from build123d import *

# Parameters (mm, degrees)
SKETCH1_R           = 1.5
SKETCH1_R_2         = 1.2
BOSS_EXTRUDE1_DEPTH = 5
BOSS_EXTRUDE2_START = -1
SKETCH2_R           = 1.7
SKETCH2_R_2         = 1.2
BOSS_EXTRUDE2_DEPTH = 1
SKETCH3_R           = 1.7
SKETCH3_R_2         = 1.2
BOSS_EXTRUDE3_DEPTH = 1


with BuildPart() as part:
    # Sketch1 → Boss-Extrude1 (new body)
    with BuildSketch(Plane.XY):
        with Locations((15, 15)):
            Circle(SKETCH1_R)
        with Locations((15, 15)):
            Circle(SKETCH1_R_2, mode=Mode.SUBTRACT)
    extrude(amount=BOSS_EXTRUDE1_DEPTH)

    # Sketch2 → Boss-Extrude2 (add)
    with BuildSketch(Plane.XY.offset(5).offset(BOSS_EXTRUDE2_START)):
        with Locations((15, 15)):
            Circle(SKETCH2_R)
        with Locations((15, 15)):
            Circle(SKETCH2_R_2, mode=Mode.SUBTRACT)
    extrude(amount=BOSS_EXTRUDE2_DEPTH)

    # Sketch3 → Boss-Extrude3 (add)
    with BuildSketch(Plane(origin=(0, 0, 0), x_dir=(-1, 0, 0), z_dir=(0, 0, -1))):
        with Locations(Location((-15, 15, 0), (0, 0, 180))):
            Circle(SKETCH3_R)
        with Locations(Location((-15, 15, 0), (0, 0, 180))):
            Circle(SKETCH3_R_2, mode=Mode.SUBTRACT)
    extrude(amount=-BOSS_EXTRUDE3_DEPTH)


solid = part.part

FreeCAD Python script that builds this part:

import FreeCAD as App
import Part
import Sketcher

doc = App.newDocument("Part")
params = doc.addObject("Spreadsheet::Sheet", "Params")
for row, (alias, value) in enumerate([
    ("sketch1_diameter", "3 mm"),
    ("sketch1_diameter2", "2.4 mm"),
    ("pad1_length", "5 mm"),
    ("sketch2_diameter", "3.4 mm"),
    ("sketch2_diameter2", "2.4 mm"),
    ("pad2_length", "1 mm"),
    ("sketch3_diameter", "3.4 mm"),
    ("sketch3_diameter2", "2.4 mm"),
    ("pad3_length", "1 mm"),
], start=1):
    params.set(f"A{row}", alias)
    params.set(f"B{row}", "=" + value)
    params.setAlias(f"B{row}", alias)

body = doc.addObject("PartDesign::Body", "Body")

# Sketch on XY plane
sketch1 = body.newObject("Sketcher::SketchObject", "Sketch")
sketch1.AttachmentSupport = (doc.getObject("XY_Plane"), [""])
sketch1.MapMode = "FlatFace"
sketch1.addGeometry([
    Part.Circle(App.Vector(15, 15, 0), App.Vector(0, 0, 1), 1.5),
    Part.Circle(App.Vector(15, 15, 0), App.Vector(0, 0, 1), 1.2),
], False)
sketch1.addConstraint([
    Sketcher.Constraint("Coincident", 1, 3, 0, 3),
    Sketcher.Constraint("Diameter", 0, 3.0),
    Sketcher.Constraint("Diameter", 1, 2.4),
    Sketcher.Constraint("DistanceX", -1, 1, 0, 3, 15.0),
    Sketcher.Constraint("DistanceY", -1, 1, 0, 3, 15.0),
])
sketch1.setExpression("Constraints[1]", "Params.sketch1_diameter")
sketch1.setExpression("Constraints[2]", "Params.sketch1_diameter2")
pad1 = body.newObject("PartDesign::Pad", "Pad")
pad1.Profile = sketch1
pad1.setExpression("Length", "Params.pad1_length")

# Sketch on XY plane
sketch2 = body.newObject("Sketcher::SketchObject", "Sketch001")
sketch2.AttachmentSupport = (doc.getObject("XY_Plane"), [""])
sketch2.MapMode = "FlatFace"
sketch2.AttachmentOffset = App.Placement(App.Vector(0, 0, 4), App.Rotation())
sketch2.addGeometry([
    Part.Circle(App.Vector(15, 15, 0), App.Vector(0, 0, 1), 1.7),
    Part.Circle(App.Vector(15, 15, 0), App.Vector(0, 0, 1), 1.2),
], False)
sketch2.addConstraint([
    Sketcher.Constraint("Coincident", 1, 3, 0, 3),
    Sketcher.Constraint("Diameter", 0, 3.4),
    Sketcher.Constraint("Diameter", 1, 2.4),
    Sketcher.Constraint("DistanceX", -1, 1, 0, 3, 15.0),
    Sketcher.Constraint("DistanceY", -1, 1, 0, 3, 15.0),
])
sketch2.setExpression("Constraints[1]", "Params.sketch2_diameter")
sketch2.setExpression("Constraints[2]", "Params.sketch2_diameter2")
pad2 = body.newObject("PartDesign::Pad", "Pad001")
pad2.Profile = sketch2
pad2.setExpression("Length", "Params.pad2_length")

# Sketch on XY plane
sketch3 = body.newObject("Sketcher::SketchObject", "Sketch002")
sketch3.AttachmentSupport = (doc.getObject("XY_Plane"), [""])
sketch3.MapMode = "FlatFace"
sketch3.addGeometry([
    Part.Circle(App.Vector(15, 15, 0), App.Vector(0, 0, 1), 1.7),
    Part.Circle(App.Vector(15, 15, 0), App.Vector(0, 0, 1), 1.2),
], False)
sketch3.addConstraint([
    Sketcher.Constraint("Coincident", 1, 3, 0, 3),
    Sketcher.Constraint("Diameter", 0, 3.4),
    Sketcher.Constraint("Diameter", 1, 2.4),
    Sketcher.Constraint("DistanceX", -1, 1, 0, 3, 15.0),
    Sketcher.Constraint("DistanceY", -1, 1, 0, 3, 15.0),
])
sketch3.setExpression("Constraints[1]", "Params.sketch3_diameter")
sketch3.setExpression("Constraints[2]", "Params.sketch3_diameter2")
pad3 = body.newObject("PartDesign::Pad", "Pad002")
pad3.Profile = sketch3
pad3.setExpression("Length", "Params.pad3_length")

doc.recompute()
